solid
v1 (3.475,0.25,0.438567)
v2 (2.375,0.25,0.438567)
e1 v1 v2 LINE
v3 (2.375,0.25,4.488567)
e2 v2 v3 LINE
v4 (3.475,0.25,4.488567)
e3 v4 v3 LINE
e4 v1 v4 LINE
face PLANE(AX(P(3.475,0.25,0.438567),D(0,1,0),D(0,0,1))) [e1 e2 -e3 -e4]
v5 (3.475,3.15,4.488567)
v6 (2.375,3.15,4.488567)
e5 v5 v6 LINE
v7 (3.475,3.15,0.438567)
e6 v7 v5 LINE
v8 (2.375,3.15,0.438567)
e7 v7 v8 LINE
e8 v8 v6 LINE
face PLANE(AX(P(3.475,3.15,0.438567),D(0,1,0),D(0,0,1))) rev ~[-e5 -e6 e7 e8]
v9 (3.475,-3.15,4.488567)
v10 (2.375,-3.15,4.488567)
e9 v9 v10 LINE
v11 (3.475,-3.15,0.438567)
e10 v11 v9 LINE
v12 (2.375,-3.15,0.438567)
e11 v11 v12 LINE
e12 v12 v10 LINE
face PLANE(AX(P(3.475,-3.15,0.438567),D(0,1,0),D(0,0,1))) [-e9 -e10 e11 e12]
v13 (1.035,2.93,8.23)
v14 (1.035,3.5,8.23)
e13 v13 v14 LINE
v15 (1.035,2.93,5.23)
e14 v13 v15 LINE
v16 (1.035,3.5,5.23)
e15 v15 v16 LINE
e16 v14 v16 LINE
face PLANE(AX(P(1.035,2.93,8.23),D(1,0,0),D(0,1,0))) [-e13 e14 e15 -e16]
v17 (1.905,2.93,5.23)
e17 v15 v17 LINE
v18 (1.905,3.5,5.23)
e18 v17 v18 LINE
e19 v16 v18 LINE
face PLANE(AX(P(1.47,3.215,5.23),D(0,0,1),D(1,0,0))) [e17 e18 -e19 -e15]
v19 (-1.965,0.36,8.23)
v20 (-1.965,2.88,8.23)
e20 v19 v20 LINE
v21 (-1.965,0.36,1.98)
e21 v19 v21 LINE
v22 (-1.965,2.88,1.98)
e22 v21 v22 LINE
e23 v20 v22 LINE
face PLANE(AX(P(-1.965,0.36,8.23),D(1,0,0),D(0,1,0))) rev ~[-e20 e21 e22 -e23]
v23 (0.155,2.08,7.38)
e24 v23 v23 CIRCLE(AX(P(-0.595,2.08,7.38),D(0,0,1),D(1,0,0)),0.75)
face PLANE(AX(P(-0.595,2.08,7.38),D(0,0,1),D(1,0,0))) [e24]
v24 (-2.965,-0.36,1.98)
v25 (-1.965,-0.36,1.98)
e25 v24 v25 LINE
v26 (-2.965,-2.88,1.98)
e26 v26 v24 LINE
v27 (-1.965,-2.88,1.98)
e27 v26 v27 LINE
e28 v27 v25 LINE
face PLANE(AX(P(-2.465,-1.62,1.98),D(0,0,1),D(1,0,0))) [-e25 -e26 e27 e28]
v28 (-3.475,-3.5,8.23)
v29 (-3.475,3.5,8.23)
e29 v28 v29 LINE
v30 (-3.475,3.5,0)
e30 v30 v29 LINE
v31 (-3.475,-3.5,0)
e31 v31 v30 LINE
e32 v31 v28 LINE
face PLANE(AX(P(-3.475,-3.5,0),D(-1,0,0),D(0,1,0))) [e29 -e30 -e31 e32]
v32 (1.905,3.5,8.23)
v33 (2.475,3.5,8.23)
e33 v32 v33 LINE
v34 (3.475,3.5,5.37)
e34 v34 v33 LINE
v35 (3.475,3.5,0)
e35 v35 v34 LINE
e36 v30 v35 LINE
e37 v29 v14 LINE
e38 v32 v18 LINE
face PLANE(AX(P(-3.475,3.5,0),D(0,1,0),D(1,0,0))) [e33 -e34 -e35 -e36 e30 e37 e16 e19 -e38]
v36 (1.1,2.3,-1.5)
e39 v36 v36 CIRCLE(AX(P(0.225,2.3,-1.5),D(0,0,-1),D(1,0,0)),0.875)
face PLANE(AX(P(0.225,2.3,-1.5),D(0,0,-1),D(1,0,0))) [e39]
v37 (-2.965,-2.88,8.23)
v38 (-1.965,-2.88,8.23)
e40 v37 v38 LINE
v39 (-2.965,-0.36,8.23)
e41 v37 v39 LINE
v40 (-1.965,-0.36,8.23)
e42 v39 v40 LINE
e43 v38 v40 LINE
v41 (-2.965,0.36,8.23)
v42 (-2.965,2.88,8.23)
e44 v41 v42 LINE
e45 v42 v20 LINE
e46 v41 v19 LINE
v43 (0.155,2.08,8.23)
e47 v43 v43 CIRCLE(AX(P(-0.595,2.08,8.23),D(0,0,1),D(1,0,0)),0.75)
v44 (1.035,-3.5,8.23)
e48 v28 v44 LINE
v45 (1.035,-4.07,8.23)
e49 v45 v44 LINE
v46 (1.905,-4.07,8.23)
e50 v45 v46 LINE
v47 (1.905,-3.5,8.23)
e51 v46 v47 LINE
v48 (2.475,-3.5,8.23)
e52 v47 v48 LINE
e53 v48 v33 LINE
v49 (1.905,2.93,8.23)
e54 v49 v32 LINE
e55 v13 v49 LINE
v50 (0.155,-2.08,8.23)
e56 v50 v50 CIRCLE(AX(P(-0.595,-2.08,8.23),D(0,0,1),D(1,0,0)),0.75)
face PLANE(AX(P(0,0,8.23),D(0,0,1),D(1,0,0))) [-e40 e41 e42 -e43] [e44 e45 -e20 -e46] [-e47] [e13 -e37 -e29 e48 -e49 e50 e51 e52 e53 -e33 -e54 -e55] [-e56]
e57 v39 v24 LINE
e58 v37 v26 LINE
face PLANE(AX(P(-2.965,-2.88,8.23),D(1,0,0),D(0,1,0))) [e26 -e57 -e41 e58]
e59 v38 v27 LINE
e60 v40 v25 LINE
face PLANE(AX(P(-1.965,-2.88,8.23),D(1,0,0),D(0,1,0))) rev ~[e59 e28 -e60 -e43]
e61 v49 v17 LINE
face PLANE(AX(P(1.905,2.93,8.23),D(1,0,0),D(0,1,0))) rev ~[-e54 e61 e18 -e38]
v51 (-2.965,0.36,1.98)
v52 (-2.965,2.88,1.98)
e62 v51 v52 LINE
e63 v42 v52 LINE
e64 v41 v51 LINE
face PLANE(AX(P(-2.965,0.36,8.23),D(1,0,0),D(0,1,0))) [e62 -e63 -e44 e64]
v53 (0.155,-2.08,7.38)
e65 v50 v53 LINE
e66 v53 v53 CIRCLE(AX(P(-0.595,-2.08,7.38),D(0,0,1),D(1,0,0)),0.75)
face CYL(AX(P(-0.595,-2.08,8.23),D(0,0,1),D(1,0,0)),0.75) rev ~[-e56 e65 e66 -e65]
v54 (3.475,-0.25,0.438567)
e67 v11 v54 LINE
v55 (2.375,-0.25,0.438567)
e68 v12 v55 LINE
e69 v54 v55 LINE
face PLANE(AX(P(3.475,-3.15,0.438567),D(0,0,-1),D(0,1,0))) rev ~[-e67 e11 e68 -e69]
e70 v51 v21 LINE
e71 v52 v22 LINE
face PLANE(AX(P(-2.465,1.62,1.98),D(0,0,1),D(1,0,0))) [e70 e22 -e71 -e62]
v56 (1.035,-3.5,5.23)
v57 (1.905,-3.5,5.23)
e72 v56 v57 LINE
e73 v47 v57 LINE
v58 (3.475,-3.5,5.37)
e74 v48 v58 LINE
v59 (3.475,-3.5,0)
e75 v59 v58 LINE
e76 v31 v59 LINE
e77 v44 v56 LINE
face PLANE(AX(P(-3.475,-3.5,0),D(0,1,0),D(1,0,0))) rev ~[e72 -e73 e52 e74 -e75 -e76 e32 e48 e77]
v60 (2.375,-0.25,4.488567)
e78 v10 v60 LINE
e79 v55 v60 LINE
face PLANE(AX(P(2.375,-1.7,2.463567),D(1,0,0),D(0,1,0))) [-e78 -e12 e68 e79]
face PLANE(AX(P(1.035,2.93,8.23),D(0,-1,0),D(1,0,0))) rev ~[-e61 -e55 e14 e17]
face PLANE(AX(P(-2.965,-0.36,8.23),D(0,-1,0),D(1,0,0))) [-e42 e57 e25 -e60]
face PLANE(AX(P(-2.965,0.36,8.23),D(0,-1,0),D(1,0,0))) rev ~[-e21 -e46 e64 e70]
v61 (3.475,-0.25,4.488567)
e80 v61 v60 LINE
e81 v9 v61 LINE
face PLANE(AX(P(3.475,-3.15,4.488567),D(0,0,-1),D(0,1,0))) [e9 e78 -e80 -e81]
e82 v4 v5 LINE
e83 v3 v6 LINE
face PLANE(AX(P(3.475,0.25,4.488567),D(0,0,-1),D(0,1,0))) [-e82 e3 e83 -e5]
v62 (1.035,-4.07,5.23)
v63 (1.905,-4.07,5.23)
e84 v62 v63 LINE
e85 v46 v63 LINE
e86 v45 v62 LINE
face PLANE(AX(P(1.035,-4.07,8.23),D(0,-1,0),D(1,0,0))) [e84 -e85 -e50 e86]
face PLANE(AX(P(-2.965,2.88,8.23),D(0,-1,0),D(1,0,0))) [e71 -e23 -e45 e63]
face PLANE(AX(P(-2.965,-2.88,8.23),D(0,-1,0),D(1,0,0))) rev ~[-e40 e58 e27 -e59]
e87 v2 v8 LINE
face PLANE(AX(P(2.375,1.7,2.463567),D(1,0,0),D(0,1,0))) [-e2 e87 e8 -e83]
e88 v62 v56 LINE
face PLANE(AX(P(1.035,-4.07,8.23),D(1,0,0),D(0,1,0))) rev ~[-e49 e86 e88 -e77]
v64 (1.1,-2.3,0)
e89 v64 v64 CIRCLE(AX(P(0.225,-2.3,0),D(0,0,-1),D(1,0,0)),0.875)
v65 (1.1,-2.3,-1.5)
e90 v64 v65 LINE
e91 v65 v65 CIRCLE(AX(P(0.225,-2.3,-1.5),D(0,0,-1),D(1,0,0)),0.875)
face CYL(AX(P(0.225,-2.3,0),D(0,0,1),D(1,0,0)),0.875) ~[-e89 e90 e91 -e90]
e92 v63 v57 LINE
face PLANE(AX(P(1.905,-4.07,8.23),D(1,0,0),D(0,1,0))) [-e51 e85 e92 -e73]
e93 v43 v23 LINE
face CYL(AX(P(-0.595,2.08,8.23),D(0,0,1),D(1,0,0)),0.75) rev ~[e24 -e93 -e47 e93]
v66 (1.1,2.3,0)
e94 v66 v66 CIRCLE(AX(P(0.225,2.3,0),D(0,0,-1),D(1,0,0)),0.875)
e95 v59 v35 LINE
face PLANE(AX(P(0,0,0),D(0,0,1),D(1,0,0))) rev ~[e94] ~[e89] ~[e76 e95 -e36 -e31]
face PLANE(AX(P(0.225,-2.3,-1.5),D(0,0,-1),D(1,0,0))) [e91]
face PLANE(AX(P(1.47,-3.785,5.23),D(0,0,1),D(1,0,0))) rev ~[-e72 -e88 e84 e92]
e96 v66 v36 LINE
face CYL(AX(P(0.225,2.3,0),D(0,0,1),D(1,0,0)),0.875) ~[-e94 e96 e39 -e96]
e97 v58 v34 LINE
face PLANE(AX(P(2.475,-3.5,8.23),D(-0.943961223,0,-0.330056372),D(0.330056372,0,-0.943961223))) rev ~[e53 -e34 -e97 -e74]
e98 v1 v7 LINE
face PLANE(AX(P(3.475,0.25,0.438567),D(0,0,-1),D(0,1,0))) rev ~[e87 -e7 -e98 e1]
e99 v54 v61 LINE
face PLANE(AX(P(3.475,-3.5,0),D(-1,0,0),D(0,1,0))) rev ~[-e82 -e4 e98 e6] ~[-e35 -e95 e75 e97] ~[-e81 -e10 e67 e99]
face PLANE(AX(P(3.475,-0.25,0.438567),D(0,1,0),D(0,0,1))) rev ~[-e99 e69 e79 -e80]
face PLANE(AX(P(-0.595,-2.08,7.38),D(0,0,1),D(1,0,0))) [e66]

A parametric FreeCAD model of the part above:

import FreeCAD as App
import Part
import Sketcher

V = App.Vector

doc = App.newDocument("Part")
body = doc.addObject("PartDesign::Body", "Body")

sketch1 = doc.addObject("Sketcher::SketchObject", "Sketch")
body.addObject(sketch1)
sketch1.AttachmentSupport = (doc.XY_Plane, [""])
sketch1.MapMode = "FlatFace"
sketch1.addGeometry(Part.LineSegment(V(-3.475, 3.5, 0), V(-3.475, -3.5, 0)), False)
sketch1.addGeometry(Part.LineSegment(V(-3.475, -3.5, 0), V(3.475, -3.5, 0)), False)
sketch1.addGeometry(Part.LineSegment(V(3.475, -3.5, 0), V(3.475, 3.5, 0)), False)
sketch1.addGeometry(Part.LineSegment(V(3.475, 3.5, 0), V(-3.475, 3.5, 0)), False)
sketch1.addConstraint(Sketcher.Constraint("Coincident", 0, 2, 1, 1))
sketch1.addConstraint(Sketcher.Constraint("Coincident", 1, 2, 2, 1))
sketch1.addConstraint(Sketcher.Constraint("Coincident", 2, 2, 3, 1))
sketch1.addConstraint(Sketcher.Constraint("Coincident", 3, 2, 0, 1))
sketch1.addConstraint(Sketcher.Constraint("Vertical", 0))
sketch1.addConstraint(Sketcher.Constraint("Horizontal", 1))
sketch1.addConstraint(Sketcher.Constraint("Vertical", 2))
sketch1.addConstraint(Sketcher.Constraint("Horizontal", 3))
sketch1.addConstraint(Sketcher.Constraint("Symmetric", 0, 2, 2, 2, -1, 1))
sketch1.addConstraint(Sketcher.Constraint("DistanceY", 0, 2, 0, 1, 7.0))
sketch1.addConstraint(Sketcher.Constraint("DistanceX", 1, 1, 1, 2, 6.95))
pad1 = doc.addObject("PartDesign::Pad", "Pad")
body.addObject(pad1)
pad1.Profile = sketch1
pad1.Length = 8.23

sketch2 = doc.addObject("Sketcher::SketchObject", "Sketch001")
body.addObject(sketch2)
sketch2.AttachmentSupport = (doc.XZ_Plane, [""])
sketch2.MapMode = "FlatFace"
sketch2.AttachmentOffset = App.Placement(V(0, 0, 3.5), App.Rotation())
sketch2.addGeometry(Part.LineSegment(V(3.475, 8.23, 0), V(2.475, 8.23, 0)), False)
sketch2.addGeometry(Part.LineSegment(V(2.475, 8.23, 0), V(3.475, 5.37, 0)), False)
sketch2.addGeometry(Part.LineSegment(V(3.475, 5.37, 0), V(3.475, 8.23, 0)), False)
sketch2.addConstraint(Sketcher.Constraint("Coincident", 0, 2, 1, 1))
sketch2.addConstraint(Sketcher.Constraint("Coincident", 1, 2, 2, 1))
sketch2.addConstraint(Sketcher.Constraint("Coincident", 2, 2, 0, 1))
sketch2.addConstraint(Sketcher.Constraint("Horizontal", 0))
sketch2.addConstraint(Sketcher.Constraint("Vertical", 2))
sketch2.addConstraint(Sketcher.Constraint("DistanceX", 0, 2, 0, 1, 1.0))
sketch2.addConstraint(Sketcher.Constraint("DistanceY", 2, 1, 2, 2, 2.86))
sketch2.addConstraint(Sketcher.Constraint("DistanceY", -1, 1, 0, 2, 8.23))
sketch2.addConstraint(Sketcher.Constraint("DistanceX", -1, 1, 0, 2, 2.475))
pocket1 = doc.addObject("PartDesign::Pocket", "Pocket")
body.addObject(pocket1)
pocket1.Profile = sketch2
pocket1.Type = "ThroughAll"

sketch3 = doc.addObject("Sketcher::SketchObject", "Sketch002")
body.addObject(sketch3)
sketch3.AttachmentSupport = (doc.YZ_Plane, [""])
sketch3.MapMode = "FlatFace"
sketch3.AttachmentOffset = App.Placement(V(0, 0, 3.475), App.Rotation())
sketch3.addGeometry(Part.LineSegment(V(-3.15, 4.488567, 0), V(-3.15, 0.438567, 0)), False)
sketch3.addGeometry(Part.LineSegment(V(-3.15, 0.438567, 0), V(-0.25, 0.438567, 0)), False)
sketch3.addGeometry(Part.LineSegment(V(-0.25, 0.438567, 0), V(-0.25, 4.488567, 0)), False)
sketch3.addGeometry(Part.LineSegment(V(-0.25, 4.488567, 0), V(-3.15, 4.488567, 0)), False)
sketch3.addGeometry(Part.LineSegment(V(0.25, 4.488567, 0), V(0.25, 0.438567, 0)), False)
sketch3.addGeometry(Part.LineSegment(V(0.25, 0.438567, 0), V(3.15, 0.438567, 0)), False)
sketch3.addGeometry(Part.LineSegment(V(3.15, 0.438567, 0), V(3.15, 4.488567, 0)), False)
sketch3.addGeometry(Part.LineSegment(V(3.15, 4.488567, 0), V(0.25, 4.488567, 0)), False)
sketch3.addConstraint(Sketcher.Constraint("Coincident", 0, 2, 1, 1))
sketch3.addConstraint(Sketcher.Constraint("Coincident", 1, 2, 2, 1))
sketch3.addConstraint(Sketcher.Constraint("Coincident", 2, 2, 3, 1))
sketch3.addConstraint(Sketcher.Constraint("Coincident", 3, 2, 0, 1))
sketch3.addConstraint(Sketcher.Constraint("Coincident", 4, 2, 5, 1))
sketch3.addConstraint(Sketcher.Constraint("Coincident", 5, 2, 6, 1))
sketch3.addConstraint(Sketcher.Constraint("Coincident", 6, 2, 7, 1))
sketch3.addConstraint(Sketcher.Constraint("Coincident", 7, 2, 4, 1))
sketch3.addConstraint(Sketcher.Constraint("Vertical", 0))
sketch3.addConstraint(Sketcher.Constraint("Horizontal", 1))
sketch3.addConstraint(Sketcher.Constraint("Vertical", 2))
sketch3.addConstraint(Sketcher.Constraint("Horizontal", 3))
sketch3.addConstraint(Sketcher.Constraint("Vertical", 4))
sketch3.addConstraint(Sketcher.Constraint("Horizontal", 5))
sketch3.addConstraint(Sketcher.Constraint("Vertical", 6))
sketch3.addConstraint(Sketcher.Constraint("Horizontal", 7))
sketch3.addConstraint(Sketcher.Constraint("Symmetric", 1, 2, 4, 2, -2))
sketch3.addConstraint(Sketcher.Constraint("Symmetric", 3, 2, 6, 2, -2))
sketch3.addConstraint(Sketcher.Constraint("DistanceX", 1, 1, 1, 2, 2.9))
sketch3.addConstraint(Sketcher.Constraint("DistanceY", 0, 2, 0, 1, 4.05))
sketch3.addConstraint(Sketcher.Constraint("DistanceX", 1, 2, 4, 2, 0.5))
sketch3.addConstraint(Sketcher.Constraint("DistanceY", -1, 1, 0, 2, 0.438567))
pocket2 = doc.addObject("PartDesign::Pocket", "Pocket001")
body.addObject(pocket2)
pocket2.Profile = sketch3
pocket2.Length = 1.1

sketch4 = doc.addObject("Sketcher::SketchObject", "Sketch003")
body.addObject(sketch4)
sketch4.AttachmentSupport = (doc.XY_Plane, [""])
sketch4.MapMode = "FlatFace"
sketch4.AttachmentOffset = App.Placement(V(0, 0, 8.23), App.Rotation())
sketch4.addGeometry(Part.LineSegment(V(1.035, -3.5, 0), V(1.035, -4.07, 0)), False)
sketch4.addGeometry(Part.LineSegment(V(1.035, -4.07, 0), V(1.905, -4.07, 0)), False)
sketch4.addGeometry(Part.LineSegment(V(1.905, -4.07, 0), V(1.905, -3.5, 0)), False)
sketch4.addGeometry(Part.LineSegment(V(1.905, -3.5, 0), V(1.035, -3.5, 0)), False)
sketch4.addConstraint(Sketcher.Constraint("Coincident", 0, 2, 1, 1))
sketch4.addConstraint(Sketcher.Constraint("Coincident", 1, 2, 2, 1))
sketch4.addConstraint(Sketcher.Constraint("Coincident", 2, 2, 3, 1))
sketch4.addConstraint(Sketcher.Constraint("Coincident", 3, 2, 0, 1))
sketch4.addConstraint(Sketcher.Constraint("Vertical", 0))
sketch4.addConstraint(Sketcher.Constraint("Horizontal", 1))
sketch4.addConstraint(Sketcher.Constraint("Vertical", 2))
sketch4.addConstraint(Sketcher.Constraint("Horizontal", 3))
sketch4.addConstraint(Sketcher.Constraint("DistanceX", 1, 1, 1, 2, 0.87))
sketch4.addConstraint(Sketcher.Constraint("DistanceY", 0, 2, 0, 1, 0.57))
sketch4.addConstraint(Sketcher.Constraint("DistanceY", 2, 2, -1, 1, 3.5))
sketch4.addConstraint(Sketcher.Constraint("DistanceX", -1, 1, 0, 2, 1.035))
pad2 = doc.addObject("PartDesign::Pad", "Pad001")
body.addObject(pad2)
pad2.Profile = sketch4
pad2.Length = 3
pad2.Reversed = True

sketch5 = doc.addObject("Sketcher::SketchObject", "Sketch004")
body.addObject(sketch5)
sketch5.AttachmentSupport = (doc.XY_Plane, [""])
sketch5.MapMode = "FlatFace"
sketch5.AttachmentOffset = App.Placement(V(0, 0, 8.23), App.Rotation())
sketch5.addGeometry(Part.LineSegment(V(1.035, 3.5, 0), V(1.035, 2.93, 0)), False)
sketch5.addGeometry(Part.LineSegment(V(1.035, 2.93, 0), V(1.905, 2.93, 0)), False)
sketch5.addGeometry(Part.LineSegment(V(1.905, 2.93, 0), V(1.905, 3.5, 0)), False)
sketch5.addGeometry(Part.LineSegment(V(1.905, 3.5, 0), V(1.035, 3.5, 0)), False)
sketch5.addConstraint(Sketcher.Constraint("Coincident", 0, 2, 1, 1))
sketch5.addConstraint(Sketcher.Constraint("Coincident", 1, 2, 2, 1))
sketch5.addConstraint(Sketcher.Constraint("Coincident", 2, 2, 3, 1))
sketch5.addConstraint(Sketcher.Constraint("Coincident", 3, 2, 0, 1))
sketch5.addConstraint(Sketcher.Constraint("Vertical", 0))
sketch5.addConstraint(Sketcher.Constraint("Horizontal", 1))
sketch5.addConstraint(Sketcher.Constraint("Vertical", 2))
sketch5.addConstraint(Sketcher.Constraint("Horizontal", 3))
sketch5.addConstraint(Sketcher.Constraint("DistanceX", 1, 1, 1, 2, 0.87))
sketch5.addConstraint(Sketcher.Constraint("DistanceY", 0, 2, 0, 1, 0.57))
sketch5.addConstraint(Sketcher.Constraint("DistanceY", -1, 1, 2, 2, 3.5))
sketch5.addConstraint(Sketcher.Constraint("DistanceX", -1, 1, 0, 2, 1.035))
pocket3 = doc.addObject("PartDesign::Pocket", "Pocket002")
body.addObject(pocket3)
pocket3.Profile = sketch5
pocket3.Length = 3

sketch6 = doc.addObject("Sketcher::SketchObject", "Sketch005")
body.addObject(sketch6)
sketch6.AttachmentSupport = (doc.XY_Plane, [""])
sketch6.MapMode = "FlatFace"
sketch6.AttachmentOffset = App.Placement(V(0, 0, 8.23), App.Rotation())
sketch6.addGeometry(Part.Circle(V(-0.595, -2.08, 0), V(0, 0, 1), 0.75), False)
sketch6.addGeometry(Part.Circle(V(-0.595, 2.08, 0), V(0, 0, 1), 0.75), False)
sketch6.addConstraint(Sketcher.Constraint("Equal", 0, 1))
sketch6.addConstraint(Sketcher.Constraint("Symmetric", 0, 3, 1, 3, -1))
sketch6.addConstraint(Sketcher.Constraint("Diameter", 0, 1.5))
sketch6.addConstraint(Sketcher.Constraint("DistanceY", 0, 3, -1, 1, 2.08))
sketch6.addConstraint(Sketcher.Constraint("DistanceX", 0, 3, -1, 1, 0.595))
pocket4 = doc.addObject("PartDesign::Pocket", "Pocket003")
body.addObject(pocket4)
pocket4.Profile = sketch6
pocket4.Length = 0.85

sketch7 = doc.addObject("Sketcher::SketchObject", "Sketch006")
body.addObject(sketch7)
sketch7.AttachmentSupport = (doc.XY_Plane, [""])
sketch7.MapMode = "FlatFace"
sketch7.AttachmentOffset = App.Placement(V(0, 0, 8.23), App.Rotation())
sketch7.addGeometry(Part.LineSegment(V(-2.965, -0.36, 0), V(-2.965, -2.88, 0)), False)
sketch7.addGeometry(Part.LineSegment(V(-2.965, -2.88, 0), V(-1.965, -2.88, 0)), False)
sketch7.addGeometry(Part.LineSegment(V(-1.965, -2.88, 0), V(-1.965, -0.36, 0)), False)
sketch7.addGeometry(Part.LineSegment(V(-1.965, -0.36, 0), V(-2.965, -0.36, 0)), False)
sketch7.addGeometry(Part.LineSegment(V(-2.965, 2.88, 0), V(-2.965, 0.36, 0)), False)
sketch7.addGeometry(Part.LineSegment(V(-2.965, 0.36, 0), V(-1.965, 0.36, 0)), False)
sketch7.addGeometry(Part.LineSegment(V(-1.965, 0.36, 0), V(-1.965, 2.88, 0)), False)
sketch7.addGeometry(Part.LineSegment(V(-1.965, 2.88, 0), V(-2.965, 2.88, 0)), False)
sketch7.addConstraint(Sketcher.Constraint("Coincident", 0, 2, 1, 1))
sketch7.addConstraint(Sketcher.Constraint("Coincident", 1, 2, 2, 1))
sketch7.addConstraint(Sketcher.Constraint("Coincident", 2, 2, 3, 1))
sketch7.addConstraint(Sketcher.Constraint("Coincident", 3, 2, 0, 1))
sketch7.addConstraint(Sketcher.Constraint("Coincident", 4, 2, 5, 1))
sketch7.addConstraint(Sketcher.Constraint("Coincident", 5, 2, 6, 1))
sketch7.addConstraint(Sketcher.Constraint("Coincident", 6, 2, 7, 1))
sketch7.addConstraint(Sketcher.Constraint("Coincident", 7, 2, 4, 1))
sketch7.addConstraint(Sketcher.Constraint("Vertical", 0))
sketch7.addConstraint(Sketcher.Constraint("Horizontal", 1))
sketch7.addConstraint(Sketcher.Constraint("Vertical", 2))
sketch7.addConstraint(Sketcher.Constraint("Horizontal", 3))
sketch7.addConstraint(Sketcher.Constraint("Vertical", 4))
sketch7.addConstraint(Sketcher.Constraint("Horizontal", 5))
sketch7.addConstraint(Sketcher.Constraint("Vertical", 6))
sketch7.addConstraint(Sketcher.Constraint("Horizontal", 7))
sketch7.addConstraint(Sketcher.Constraint("Symmetric", 3, 2, 4, 2, -1))
sketch7.addConstraint(Sketcher.Constraint("Symmetric", 1, 2, 6, 2, -1))
sketch7.addConstraint(Sketcher.Constraint("DistanceX", 1, 1, 1, 2, 1.0))
sketch7.addConstraint(Sketcher.Constraint("DistanceY", 0, 2, 0, 1, 2.52))
sketch7.addConstraint(Sketcher.Constraint("DistanceY", 0, 2, -1, 1, 2.88))
sketch7.addConstraint(Sketcher.Constraint("DistanceX", 0, 2, -1, 1, 2.965))
pocket5 = doc.addObject("PartDesign::Pocket", "Pocket004")
body.addObject(pocket5)
pocket5.Profile = sketch7
pocket5.Length = 6.25

sketch8 = doc.addObject("Sketcher::SketchObject", "Sketch007")
body.addObject(sketch8)
sketch8.AttachmentSupport = (doc.XY_Plane, [""])
sketch8.MapMode = "FlatFace"
sketch8.addGeometry(Part.Circle(V(0.225, -2.3, 0), V(0, 0, 1), 0.875), False)
sketch8.addGeometry(Part.Circle(V(0.225, 2.3, 0), V(0, 0, 1), 0.875), False)
sketch8.addConstraint(Sketcher.Constraint("Equal", 0, 1))
sketch8.addConstraint(Sketcher.Constraint("Symmetric", 0, 3, 1, 3, -1))
sketch8.addConstraint(Sketcher.Constraint("Diameter", 0, 1.75))
sketch8.addConstraint(Sketcher.Constraint("DistanceY", 0, 3, -1, 1, 2.3))
sketch8.addConstraint(Sketcher.Constraint("DistanceX", -1, 1, 0, 3, 0.225))
pad3 = doc.addObject("PartDesign::Pad", "Pad002")
body.addObject(pad3)
pad3.Profile = sketch8
pad3.Length = 1.5
pad3.Reversed = True

doc.recompute()
